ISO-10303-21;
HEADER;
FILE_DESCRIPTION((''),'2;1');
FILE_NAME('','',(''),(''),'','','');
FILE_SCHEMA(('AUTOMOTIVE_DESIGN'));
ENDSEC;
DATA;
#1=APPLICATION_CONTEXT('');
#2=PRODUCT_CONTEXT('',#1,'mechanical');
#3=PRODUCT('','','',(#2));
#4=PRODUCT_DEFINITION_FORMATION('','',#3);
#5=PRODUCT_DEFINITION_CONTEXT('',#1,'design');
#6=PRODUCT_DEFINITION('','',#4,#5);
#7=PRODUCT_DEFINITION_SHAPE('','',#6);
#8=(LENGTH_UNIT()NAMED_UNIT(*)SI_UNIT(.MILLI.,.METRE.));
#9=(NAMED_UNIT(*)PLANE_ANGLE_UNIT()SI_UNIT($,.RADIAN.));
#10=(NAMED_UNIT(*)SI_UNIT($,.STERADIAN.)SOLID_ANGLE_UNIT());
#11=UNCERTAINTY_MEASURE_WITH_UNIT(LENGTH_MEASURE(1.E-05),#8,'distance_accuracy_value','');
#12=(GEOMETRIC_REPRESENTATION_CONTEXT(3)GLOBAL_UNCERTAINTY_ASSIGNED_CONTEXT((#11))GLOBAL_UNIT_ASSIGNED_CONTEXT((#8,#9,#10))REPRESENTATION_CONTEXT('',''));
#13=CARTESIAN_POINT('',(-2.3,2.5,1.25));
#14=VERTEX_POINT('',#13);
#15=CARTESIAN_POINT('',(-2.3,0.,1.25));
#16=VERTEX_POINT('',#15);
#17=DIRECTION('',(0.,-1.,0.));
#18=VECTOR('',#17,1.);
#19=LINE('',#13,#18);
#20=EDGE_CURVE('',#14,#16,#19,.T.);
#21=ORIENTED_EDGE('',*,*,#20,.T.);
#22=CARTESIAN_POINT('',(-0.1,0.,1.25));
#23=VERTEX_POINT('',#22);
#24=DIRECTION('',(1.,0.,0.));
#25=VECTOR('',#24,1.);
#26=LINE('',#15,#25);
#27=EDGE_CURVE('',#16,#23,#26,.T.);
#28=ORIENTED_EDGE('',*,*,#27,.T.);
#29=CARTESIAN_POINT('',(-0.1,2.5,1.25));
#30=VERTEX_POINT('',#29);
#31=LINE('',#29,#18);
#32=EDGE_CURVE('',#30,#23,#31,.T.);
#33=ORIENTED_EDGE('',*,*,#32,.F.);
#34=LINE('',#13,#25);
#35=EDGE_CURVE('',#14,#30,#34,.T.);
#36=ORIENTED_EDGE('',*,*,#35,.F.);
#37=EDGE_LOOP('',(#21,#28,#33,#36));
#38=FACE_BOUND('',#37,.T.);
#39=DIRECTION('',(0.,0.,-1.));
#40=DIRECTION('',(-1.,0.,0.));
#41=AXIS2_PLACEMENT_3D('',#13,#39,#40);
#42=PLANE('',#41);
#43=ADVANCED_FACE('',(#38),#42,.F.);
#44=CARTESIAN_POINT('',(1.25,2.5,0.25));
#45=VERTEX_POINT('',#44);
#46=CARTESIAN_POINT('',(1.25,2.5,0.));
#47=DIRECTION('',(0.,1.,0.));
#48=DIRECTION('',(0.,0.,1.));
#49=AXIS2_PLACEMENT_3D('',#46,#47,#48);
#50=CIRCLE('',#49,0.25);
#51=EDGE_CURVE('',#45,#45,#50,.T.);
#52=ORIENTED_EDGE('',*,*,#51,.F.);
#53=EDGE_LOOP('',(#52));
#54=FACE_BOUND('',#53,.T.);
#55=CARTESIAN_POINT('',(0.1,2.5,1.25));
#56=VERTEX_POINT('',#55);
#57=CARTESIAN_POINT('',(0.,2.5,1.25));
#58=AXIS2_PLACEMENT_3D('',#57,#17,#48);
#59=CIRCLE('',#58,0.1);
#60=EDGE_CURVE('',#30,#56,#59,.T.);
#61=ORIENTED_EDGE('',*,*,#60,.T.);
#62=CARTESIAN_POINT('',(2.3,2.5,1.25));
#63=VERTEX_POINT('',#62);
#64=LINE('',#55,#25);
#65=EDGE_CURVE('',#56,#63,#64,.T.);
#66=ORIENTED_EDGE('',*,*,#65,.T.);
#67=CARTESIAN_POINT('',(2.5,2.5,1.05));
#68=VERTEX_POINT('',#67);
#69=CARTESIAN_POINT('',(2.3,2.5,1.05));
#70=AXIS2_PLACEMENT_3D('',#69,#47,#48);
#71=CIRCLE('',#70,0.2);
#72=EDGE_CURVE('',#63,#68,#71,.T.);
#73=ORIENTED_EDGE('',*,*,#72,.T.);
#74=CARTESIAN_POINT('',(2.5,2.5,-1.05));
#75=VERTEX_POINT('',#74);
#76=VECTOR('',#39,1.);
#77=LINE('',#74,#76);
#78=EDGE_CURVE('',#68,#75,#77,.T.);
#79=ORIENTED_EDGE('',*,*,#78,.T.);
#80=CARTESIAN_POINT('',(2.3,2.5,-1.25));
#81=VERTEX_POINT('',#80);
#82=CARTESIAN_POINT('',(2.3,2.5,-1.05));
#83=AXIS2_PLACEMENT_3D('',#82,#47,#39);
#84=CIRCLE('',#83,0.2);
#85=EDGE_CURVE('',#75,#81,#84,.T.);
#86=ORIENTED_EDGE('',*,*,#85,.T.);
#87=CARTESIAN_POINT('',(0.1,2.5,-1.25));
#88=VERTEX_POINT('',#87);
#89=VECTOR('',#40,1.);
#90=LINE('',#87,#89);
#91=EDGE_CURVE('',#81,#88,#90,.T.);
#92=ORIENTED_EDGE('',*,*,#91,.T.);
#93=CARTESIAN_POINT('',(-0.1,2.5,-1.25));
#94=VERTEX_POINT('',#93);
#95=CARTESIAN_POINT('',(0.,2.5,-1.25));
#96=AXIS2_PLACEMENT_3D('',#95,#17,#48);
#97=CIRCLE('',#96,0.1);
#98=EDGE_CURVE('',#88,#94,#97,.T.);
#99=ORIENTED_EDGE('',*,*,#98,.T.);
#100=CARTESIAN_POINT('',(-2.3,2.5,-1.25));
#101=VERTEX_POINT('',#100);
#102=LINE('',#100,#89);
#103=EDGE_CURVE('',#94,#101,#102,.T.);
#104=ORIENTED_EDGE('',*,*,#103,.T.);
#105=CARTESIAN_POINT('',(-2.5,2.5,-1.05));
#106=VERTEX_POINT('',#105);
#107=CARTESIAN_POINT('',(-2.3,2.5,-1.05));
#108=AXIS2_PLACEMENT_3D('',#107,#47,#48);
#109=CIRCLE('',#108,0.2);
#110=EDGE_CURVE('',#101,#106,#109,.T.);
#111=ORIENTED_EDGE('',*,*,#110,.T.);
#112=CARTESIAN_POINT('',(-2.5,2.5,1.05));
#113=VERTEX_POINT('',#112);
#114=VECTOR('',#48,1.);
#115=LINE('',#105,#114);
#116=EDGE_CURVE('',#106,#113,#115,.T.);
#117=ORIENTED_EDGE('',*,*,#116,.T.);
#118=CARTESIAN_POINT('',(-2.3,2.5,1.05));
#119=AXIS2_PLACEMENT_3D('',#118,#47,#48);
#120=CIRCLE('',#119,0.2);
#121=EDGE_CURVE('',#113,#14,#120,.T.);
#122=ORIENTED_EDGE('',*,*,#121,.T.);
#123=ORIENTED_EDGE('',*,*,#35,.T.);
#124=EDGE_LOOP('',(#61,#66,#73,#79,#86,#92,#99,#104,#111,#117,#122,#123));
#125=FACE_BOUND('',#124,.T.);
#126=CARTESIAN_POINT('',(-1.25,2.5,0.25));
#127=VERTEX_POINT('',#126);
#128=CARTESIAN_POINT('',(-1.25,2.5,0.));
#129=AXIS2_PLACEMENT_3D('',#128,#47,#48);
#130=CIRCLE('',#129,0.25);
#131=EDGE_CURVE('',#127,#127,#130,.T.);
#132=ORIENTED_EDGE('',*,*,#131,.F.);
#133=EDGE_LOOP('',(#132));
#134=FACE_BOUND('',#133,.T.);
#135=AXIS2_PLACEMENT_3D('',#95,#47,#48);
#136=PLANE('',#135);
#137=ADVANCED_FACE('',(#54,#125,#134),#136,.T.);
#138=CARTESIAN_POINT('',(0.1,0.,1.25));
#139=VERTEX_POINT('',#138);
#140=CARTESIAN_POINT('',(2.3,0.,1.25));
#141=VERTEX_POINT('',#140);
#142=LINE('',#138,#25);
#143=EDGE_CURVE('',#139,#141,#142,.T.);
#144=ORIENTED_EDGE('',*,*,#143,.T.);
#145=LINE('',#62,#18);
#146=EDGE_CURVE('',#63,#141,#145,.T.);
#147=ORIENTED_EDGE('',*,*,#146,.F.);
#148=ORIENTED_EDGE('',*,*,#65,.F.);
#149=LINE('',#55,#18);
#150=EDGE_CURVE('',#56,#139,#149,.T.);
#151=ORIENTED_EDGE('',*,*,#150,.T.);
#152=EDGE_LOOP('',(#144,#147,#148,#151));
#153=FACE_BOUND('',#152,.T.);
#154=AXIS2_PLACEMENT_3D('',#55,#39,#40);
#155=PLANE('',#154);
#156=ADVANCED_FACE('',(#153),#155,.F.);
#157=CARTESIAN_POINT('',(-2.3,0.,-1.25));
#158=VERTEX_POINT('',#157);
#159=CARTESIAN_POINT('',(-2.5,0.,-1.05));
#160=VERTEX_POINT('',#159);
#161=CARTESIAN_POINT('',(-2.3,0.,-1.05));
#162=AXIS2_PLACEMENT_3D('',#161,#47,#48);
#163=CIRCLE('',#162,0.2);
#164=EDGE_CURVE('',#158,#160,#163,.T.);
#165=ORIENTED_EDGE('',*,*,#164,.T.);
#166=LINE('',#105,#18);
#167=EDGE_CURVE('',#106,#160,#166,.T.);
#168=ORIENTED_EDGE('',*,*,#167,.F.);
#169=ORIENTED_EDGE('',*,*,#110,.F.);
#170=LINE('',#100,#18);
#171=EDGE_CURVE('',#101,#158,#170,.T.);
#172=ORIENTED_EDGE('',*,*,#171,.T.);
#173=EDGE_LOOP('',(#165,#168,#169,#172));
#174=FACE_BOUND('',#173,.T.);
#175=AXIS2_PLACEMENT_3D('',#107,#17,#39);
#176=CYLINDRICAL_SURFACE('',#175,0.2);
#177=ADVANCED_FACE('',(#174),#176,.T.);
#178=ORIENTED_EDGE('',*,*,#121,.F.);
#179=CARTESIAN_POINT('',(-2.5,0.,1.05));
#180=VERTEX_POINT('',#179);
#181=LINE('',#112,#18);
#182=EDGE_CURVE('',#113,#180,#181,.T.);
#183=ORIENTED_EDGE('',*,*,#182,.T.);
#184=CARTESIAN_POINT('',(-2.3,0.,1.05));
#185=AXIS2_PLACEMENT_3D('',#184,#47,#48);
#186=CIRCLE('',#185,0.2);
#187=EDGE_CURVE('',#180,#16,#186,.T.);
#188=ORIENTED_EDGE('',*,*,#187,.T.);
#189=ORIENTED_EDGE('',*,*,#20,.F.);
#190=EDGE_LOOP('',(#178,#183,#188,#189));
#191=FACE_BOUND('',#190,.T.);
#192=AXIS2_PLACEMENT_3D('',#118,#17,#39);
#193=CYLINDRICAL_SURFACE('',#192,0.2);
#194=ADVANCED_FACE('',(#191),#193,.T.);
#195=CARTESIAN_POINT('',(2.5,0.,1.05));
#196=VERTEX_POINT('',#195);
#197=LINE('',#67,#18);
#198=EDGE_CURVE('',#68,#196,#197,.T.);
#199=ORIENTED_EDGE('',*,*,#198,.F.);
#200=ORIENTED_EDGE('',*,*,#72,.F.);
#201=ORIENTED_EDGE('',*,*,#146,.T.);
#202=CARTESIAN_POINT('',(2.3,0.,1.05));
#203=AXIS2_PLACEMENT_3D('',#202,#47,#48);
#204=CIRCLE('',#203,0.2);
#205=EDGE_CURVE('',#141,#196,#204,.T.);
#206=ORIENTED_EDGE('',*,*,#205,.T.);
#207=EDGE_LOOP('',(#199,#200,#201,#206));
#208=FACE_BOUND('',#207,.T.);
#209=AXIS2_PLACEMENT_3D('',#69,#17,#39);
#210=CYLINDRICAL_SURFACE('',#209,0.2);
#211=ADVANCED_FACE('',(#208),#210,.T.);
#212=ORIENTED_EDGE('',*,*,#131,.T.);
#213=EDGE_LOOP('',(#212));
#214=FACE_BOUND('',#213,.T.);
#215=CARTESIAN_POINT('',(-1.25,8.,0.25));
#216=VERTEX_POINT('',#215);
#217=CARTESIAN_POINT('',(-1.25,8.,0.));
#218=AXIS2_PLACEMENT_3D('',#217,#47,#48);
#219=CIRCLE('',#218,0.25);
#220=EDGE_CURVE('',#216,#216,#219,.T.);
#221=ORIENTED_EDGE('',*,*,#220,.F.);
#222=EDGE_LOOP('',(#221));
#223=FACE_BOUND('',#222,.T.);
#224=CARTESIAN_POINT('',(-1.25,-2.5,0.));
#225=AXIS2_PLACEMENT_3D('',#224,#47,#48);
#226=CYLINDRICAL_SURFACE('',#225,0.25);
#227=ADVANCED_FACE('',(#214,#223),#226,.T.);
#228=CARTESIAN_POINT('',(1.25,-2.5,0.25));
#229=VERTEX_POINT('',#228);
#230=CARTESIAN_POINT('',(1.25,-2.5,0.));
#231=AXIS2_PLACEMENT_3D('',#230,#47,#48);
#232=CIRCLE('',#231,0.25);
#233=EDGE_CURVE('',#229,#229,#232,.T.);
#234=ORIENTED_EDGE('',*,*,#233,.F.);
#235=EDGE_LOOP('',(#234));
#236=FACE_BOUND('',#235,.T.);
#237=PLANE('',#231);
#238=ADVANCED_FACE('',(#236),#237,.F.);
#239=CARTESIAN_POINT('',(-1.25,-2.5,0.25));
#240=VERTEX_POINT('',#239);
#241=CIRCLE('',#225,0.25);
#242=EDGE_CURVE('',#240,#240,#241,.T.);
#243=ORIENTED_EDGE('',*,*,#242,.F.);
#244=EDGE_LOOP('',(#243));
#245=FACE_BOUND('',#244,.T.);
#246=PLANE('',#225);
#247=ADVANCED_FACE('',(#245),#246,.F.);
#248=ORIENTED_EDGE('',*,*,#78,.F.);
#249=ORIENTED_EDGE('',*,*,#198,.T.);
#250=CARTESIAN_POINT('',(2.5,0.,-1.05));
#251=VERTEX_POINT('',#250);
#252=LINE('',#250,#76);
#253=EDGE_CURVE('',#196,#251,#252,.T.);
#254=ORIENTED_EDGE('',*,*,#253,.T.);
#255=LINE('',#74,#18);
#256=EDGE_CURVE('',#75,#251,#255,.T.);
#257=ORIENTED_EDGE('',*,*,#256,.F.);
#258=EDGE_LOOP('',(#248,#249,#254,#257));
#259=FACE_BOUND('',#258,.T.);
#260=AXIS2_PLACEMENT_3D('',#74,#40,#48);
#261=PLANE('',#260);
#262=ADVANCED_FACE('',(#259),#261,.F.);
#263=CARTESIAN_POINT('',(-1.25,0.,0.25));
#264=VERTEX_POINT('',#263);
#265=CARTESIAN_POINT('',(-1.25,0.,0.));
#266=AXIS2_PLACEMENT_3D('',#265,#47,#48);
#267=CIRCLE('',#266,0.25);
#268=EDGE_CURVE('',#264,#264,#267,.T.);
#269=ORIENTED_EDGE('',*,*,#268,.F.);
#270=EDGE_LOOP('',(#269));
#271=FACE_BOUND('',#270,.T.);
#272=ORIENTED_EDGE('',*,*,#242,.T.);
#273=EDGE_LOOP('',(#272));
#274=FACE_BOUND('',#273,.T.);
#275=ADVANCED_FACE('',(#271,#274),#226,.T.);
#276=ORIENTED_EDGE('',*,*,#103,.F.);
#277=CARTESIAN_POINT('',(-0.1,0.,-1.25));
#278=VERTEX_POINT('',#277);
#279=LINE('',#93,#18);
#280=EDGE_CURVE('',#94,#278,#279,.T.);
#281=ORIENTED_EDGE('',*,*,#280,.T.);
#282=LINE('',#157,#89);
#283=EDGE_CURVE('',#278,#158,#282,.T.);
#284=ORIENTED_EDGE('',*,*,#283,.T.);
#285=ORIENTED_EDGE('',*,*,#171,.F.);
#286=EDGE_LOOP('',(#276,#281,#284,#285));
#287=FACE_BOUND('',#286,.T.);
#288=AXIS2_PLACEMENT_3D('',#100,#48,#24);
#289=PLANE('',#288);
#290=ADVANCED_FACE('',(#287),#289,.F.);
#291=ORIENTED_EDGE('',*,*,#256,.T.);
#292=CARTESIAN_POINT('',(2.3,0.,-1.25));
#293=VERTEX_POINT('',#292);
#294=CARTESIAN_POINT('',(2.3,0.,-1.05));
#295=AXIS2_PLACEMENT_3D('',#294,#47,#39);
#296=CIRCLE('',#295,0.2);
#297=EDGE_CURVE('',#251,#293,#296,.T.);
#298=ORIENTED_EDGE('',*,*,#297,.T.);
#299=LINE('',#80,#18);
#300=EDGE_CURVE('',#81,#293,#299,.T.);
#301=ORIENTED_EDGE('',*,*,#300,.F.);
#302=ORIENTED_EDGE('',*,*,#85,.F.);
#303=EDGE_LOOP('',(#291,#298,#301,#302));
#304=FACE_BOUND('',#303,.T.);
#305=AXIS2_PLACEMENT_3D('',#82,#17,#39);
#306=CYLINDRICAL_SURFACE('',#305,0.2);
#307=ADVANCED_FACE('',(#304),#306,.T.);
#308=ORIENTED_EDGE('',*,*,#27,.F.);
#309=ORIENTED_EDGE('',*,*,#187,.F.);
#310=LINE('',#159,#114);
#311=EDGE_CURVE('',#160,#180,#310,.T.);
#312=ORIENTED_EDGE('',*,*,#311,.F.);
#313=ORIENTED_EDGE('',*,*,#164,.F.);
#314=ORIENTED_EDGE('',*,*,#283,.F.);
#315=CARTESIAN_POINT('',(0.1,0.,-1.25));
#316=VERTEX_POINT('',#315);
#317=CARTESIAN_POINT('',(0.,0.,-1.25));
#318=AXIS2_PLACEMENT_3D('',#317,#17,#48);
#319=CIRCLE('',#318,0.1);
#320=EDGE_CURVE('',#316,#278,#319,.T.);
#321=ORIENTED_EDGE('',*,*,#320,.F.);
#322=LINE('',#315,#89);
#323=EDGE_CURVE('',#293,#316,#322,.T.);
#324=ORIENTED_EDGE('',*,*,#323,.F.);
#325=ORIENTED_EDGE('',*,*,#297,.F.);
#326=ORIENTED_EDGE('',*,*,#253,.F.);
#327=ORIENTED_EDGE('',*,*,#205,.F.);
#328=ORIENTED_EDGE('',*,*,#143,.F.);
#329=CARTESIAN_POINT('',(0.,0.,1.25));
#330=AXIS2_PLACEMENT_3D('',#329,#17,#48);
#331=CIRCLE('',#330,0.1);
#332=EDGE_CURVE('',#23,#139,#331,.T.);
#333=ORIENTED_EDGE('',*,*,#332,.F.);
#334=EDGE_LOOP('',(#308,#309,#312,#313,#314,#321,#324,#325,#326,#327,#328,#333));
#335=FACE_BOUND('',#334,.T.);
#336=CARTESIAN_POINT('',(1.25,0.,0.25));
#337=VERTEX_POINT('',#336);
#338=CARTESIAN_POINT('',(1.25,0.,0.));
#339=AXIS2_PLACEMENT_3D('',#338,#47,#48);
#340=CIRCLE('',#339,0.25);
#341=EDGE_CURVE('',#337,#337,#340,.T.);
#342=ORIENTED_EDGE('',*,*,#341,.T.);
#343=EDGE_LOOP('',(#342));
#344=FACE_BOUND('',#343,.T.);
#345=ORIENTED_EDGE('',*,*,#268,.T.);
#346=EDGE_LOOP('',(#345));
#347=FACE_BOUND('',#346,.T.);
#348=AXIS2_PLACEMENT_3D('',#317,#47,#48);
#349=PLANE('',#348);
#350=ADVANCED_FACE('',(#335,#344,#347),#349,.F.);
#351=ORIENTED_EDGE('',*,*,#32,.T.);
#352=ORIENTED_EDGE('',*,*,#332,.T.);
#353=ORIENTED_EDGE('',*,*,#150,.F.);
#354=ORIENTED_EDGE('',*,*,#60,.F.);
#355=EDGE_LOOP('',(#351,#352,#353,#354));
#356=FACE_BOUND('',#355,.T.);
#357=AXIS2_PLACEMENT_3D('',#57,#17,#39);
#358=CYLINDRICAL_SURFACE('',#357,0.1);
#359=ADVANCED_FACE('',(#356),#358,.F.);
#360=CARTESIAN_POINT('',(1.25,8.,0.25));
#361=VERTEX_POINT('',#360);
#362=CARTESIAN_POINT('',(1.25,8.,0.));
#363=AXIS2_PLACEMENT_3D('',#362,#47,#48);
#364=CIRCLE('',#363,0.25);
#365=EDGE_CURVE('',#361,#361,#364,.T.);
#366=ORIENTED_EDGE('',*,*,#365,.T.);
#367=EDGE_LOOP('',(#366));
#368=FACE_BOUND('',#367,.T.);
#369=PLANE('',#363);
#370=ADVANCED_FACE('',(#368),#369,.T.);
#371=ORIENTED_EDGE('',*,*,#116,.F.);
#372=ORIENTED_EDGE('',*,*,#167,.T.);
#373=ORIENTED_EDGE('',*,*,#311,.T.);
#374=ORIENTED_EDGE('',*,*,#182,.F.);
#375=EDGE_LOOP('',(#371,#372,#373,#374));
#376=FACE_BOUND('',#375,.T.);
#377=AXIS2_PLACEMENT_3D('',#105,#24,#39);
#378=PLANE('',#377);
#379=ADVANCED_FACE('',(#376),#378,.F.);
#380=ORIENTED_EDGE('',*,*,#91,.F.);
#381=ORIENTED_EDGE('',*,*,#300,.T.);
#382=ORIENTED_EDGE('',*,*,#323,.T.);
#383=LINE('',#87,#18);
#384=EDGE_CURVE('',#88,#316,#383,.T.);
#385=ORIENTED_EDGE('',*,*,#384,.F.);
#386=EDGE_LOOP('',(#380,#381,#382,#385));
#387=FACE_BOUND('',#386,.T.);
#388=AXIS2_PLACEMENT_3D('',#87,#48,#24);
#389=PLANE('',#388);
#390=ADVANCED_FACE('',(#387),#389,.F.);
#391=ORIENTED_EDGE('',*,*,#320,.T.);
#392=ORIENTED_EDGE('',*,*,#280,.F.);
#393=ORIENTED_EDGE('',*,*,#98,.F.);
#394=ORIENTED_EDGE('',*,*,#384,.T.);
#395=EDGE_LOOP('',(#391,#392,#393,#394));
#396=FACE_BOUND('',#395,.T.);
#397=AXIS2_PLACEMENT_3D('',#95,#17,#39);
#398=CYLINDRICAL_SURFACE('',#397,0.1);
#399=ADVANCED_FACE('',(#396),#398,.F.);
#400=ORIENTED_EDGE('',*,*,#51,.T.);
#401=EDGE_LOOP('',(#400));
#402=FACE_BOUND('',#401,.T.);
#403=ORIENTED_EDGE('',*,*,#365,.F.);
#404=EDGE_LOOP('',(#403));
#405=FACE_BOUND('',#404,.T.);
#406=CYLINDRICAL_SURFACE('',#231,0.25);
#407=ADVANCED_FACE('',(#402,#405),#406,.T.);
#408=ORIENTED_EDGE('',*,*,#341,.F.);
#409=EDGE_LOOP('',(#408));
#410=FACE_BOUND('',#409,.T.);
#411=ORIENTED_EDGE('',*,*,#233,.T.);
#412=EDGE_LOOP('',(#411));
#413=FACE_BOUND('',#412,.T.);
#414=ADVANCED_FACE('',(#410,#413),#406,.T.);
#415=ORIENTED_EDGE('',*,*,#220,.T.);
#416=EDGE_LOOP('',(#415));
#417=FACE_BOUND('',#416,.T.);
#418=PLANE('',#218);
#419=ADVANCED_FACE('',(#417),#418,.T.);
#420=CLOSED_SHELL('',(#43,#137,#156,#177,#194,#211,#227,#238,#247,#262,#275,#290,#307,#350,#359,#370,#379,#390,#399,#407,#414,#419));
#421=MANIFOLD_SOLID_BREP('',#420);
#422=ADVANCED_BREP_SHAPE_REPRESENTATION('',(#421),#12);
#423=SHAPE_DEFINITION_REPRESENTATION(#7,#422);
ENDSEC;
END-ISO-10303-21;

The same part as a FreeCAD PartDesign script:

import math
import FreeCAD as App
import Part
import Sketcher
Q = App.Units.Quantity

doc = App.newDocument("Part")
body = doc.addObject("PartDesign::Body", "Body")

# Sketch on XZ plane
sketch1 = body.newObject("Sketcher::SketchObject", "Sketch")
sketch1.AttachmentSupport = (doc.getObject("XZ_Plane"), [""])
sketch1.MapMode = "FlatFace"
sketch1.addGeometry([
    Part.LineSegment(App.Vector(-0.1, -1.25, 0), App.Vector(-2.3, -1.25, 0)),  # 0
    Part.ArcOfCircle(Part.Circle(App.Vector(-2.3, -1.05, 0), App.Vector(0, 0, 1), 0.2), math.radians(-180), math.radians(-90)),  # 1
    Part.LineSegment(App.Vector(-2.5, -1.05, 0), App.Vector(-2.5, 1.05, 0)),  # 2
    Part.ArcOfCircle(Part.Circle(App.Vector(-2.3, 1.05, 0), App.Vector(0, 0, 1), 0.2), math.radians(90), math.radians(180)),  # 3
    Part.LineSegment(App.Vector(-2.3, 1.25, 0), App.Vector(-0.1, 1.25, 0)),  # 4
    Part.ArcOfCircle(Part.Circle(App.Vector(0, 1.25, 0), App.Vector(0, 0, 1), 0.1), math.radians(180), math.radians(360)),  # 5
    Part.LineSegment(App.Vector(0.1, 1.25, 0), App.Vector(2.3, 1.25, 0)),  # 6
    Part.ArcOfCircle(Part.Circle(App.Vector(2.3, 1.05, 0), App.Vector(0, 0, 1), 0.2), math.radians(0), math.radians(90)),  # 7
    Part.LineSegment(App.Vector(2.5, 1.05, 0), App.Vector(2.5, -1.05, 0)),  # 8
    Part.ArcOfCircle(Part.Circle(App.Vector(2.3, -1.05, 0), App.Vector(0, 0, 1), 0.2), math.radians(-90), math.radians(0)),  # 9
    Part.LineSegment(App.Vector(2.3, -1.25, 0), App.Vector(0.1, -1.25, 0)),  # 10
    Part.ArcOfCircle(Part.Circle(App.Vector(0, -1.25, 0), App.Vector(0, 0, 1), 0.1), math.radians(0), math.radians(180)),  # 11
    Part.Circle(App.Vector(1.25, 0, 0), App.Vector(0, 0, 1), 0.25),  # 12
    Part.Circle(App.Vector(-1.25, 0, 0), App.Vector(0, 0, 1), 0.25),  # 13
], False)
sketch1.addConstraint([
    Sketcher.Constraint("Tangent", 0, 2, 1, 2),
    Sketcher.Constraint("Tangent", 1, 1, 2, 1),
    Sketcher.Constraint("Tangent", 2, 2, 3, 2),
    Sketcher.Constraint("Tangent", 3, 1, 4, 1),
    Sketcher.Constraint("Coincident", 4, 2, 5, 1),
    Sketcher.Constraint("Coincident", 5, 2, 6, 1),
    Sketcher.Constraint("Tangent", 6, 2, 7, 2),
    Sketcher.Constraint("Tangent", 7, 1, 8, 1),
    Sketcher.Constraint("Tangent", 8, 2, 9, 2),
    Sketcher.Constraint("Tangent", 9, 1, 10, 1),
    Sketcher.Constraint("Coincident", 10, 2, 11, 1),
    Sketcher.Constraint("Coincident", 11, 2, 0, 1),
    Sketcher.Constraint("Horizontal", 0),
    Sketcher.Constraint("Vertical", 2),
    Sketcher.Constraint("Horizontal", 4),
    Sketcher.Constraint("Horizontal", 6),
    Sketcher.Constraint("Vertical", 8),
    Sketcher.Constraint("Horizontal", 10),
    Sketcher.Constraint("Equal", 1, 3),
    Sketcher.Constraint("Equal", 3, 7),
    Sketcher.Constraint("Equal", 7, 9),
    Sketcher.Constraint("Equal", 5, 11),
    Sketcher.Constraint("Equal", 12, 13),
    Sketcher.Constraint("Symmetric", 1, 3, 7, 3, -1, 1),
    Sketcher.Constraint("Symmetric", 5, 3, 11, 3, -1, 1),
    Sketcher.Constraint("Symmetric", 12, 3, 13, 3, -1, 1),
    Sketcher.Constraint("Symmetric", 4, 2, 5, 2, -2),
    Sketcher.Constraint("PointOnObject", 12, 3, -1),
    Sketcher.Constraint("Horizontal", 1, 3, 9, 3),
    Sketcher.Constraint("Horizontal", 11, 3, 0, 2),
    Sketcher.Constraint("Diameter", 12, Q("0.5 mm")),
    Sketcher.Constraint("Radius", 1, Q("0.2 mm")),
    Sketcher.Constraint("Radius", 5, Q("0.1 mm")),
    Sketcher.Constraint("DistanceX", 0, 2, 0, 1, Q("2.2 mm")),
    Sketcher.Constraint("DistanceY", 2, 1, 2, 2, Q("2.1 mm")),
    Sketcher.Constraint("DistanceX", 13, 3, 12, 3, Q("2.5 mm")),
])
pad1 = body.newObject("PartDesign::Pad", "Pad")
pad1.Profile = sketch1
pad1.Length = 2.5
pad1.Reversed = True

# Sketch on XZ plane
sketch2 = body.newObject("Sketcher::SketchObject", "Sketch001")
sketch2.AttachmentSupport = (doc.getObject("XZ_Plane"), [""])
sketch2.MapMode = "FlatFace"
sketch2.AttachmentOffset = App.Placement(App.Vector(0, 0, -2.5), App.Rotation())
sketch2.addGeometry([
    Part.Circle(App.Vector(-1.25, 0, 0), App.Vector(0, 0, 1), 0.25),
    Part.Circle(App.Vector(1.25, 0, 0), App.Vector(0, 0, 1), 0.25),
], False)
sketch2.addConstraint([
    Sketcher.Constraint("Equal", 0, 1),
    Sketcher.Constraint("Symmetric", 0, 3, 1, 3, -1, 1),
    Sketcher.Constraint("PointOnObject", 0, 3, -1),
    Sketcher.Constraint("Diameter", 0, Q("0.5 mm")),
    Sketcher.Constraint("DistanceX", 0, 3, 1, 3, Q("2.5 mm")),
])
pad2 = body.newObject("PartDesign::Pad", "Pad001")
pad2.Profile = sketch2
pad2.Type = "TwoLengths"
pad2.Length = 5.5
pad2.Length2 = 5
pad2.Reversed = True

doc.recompute()
